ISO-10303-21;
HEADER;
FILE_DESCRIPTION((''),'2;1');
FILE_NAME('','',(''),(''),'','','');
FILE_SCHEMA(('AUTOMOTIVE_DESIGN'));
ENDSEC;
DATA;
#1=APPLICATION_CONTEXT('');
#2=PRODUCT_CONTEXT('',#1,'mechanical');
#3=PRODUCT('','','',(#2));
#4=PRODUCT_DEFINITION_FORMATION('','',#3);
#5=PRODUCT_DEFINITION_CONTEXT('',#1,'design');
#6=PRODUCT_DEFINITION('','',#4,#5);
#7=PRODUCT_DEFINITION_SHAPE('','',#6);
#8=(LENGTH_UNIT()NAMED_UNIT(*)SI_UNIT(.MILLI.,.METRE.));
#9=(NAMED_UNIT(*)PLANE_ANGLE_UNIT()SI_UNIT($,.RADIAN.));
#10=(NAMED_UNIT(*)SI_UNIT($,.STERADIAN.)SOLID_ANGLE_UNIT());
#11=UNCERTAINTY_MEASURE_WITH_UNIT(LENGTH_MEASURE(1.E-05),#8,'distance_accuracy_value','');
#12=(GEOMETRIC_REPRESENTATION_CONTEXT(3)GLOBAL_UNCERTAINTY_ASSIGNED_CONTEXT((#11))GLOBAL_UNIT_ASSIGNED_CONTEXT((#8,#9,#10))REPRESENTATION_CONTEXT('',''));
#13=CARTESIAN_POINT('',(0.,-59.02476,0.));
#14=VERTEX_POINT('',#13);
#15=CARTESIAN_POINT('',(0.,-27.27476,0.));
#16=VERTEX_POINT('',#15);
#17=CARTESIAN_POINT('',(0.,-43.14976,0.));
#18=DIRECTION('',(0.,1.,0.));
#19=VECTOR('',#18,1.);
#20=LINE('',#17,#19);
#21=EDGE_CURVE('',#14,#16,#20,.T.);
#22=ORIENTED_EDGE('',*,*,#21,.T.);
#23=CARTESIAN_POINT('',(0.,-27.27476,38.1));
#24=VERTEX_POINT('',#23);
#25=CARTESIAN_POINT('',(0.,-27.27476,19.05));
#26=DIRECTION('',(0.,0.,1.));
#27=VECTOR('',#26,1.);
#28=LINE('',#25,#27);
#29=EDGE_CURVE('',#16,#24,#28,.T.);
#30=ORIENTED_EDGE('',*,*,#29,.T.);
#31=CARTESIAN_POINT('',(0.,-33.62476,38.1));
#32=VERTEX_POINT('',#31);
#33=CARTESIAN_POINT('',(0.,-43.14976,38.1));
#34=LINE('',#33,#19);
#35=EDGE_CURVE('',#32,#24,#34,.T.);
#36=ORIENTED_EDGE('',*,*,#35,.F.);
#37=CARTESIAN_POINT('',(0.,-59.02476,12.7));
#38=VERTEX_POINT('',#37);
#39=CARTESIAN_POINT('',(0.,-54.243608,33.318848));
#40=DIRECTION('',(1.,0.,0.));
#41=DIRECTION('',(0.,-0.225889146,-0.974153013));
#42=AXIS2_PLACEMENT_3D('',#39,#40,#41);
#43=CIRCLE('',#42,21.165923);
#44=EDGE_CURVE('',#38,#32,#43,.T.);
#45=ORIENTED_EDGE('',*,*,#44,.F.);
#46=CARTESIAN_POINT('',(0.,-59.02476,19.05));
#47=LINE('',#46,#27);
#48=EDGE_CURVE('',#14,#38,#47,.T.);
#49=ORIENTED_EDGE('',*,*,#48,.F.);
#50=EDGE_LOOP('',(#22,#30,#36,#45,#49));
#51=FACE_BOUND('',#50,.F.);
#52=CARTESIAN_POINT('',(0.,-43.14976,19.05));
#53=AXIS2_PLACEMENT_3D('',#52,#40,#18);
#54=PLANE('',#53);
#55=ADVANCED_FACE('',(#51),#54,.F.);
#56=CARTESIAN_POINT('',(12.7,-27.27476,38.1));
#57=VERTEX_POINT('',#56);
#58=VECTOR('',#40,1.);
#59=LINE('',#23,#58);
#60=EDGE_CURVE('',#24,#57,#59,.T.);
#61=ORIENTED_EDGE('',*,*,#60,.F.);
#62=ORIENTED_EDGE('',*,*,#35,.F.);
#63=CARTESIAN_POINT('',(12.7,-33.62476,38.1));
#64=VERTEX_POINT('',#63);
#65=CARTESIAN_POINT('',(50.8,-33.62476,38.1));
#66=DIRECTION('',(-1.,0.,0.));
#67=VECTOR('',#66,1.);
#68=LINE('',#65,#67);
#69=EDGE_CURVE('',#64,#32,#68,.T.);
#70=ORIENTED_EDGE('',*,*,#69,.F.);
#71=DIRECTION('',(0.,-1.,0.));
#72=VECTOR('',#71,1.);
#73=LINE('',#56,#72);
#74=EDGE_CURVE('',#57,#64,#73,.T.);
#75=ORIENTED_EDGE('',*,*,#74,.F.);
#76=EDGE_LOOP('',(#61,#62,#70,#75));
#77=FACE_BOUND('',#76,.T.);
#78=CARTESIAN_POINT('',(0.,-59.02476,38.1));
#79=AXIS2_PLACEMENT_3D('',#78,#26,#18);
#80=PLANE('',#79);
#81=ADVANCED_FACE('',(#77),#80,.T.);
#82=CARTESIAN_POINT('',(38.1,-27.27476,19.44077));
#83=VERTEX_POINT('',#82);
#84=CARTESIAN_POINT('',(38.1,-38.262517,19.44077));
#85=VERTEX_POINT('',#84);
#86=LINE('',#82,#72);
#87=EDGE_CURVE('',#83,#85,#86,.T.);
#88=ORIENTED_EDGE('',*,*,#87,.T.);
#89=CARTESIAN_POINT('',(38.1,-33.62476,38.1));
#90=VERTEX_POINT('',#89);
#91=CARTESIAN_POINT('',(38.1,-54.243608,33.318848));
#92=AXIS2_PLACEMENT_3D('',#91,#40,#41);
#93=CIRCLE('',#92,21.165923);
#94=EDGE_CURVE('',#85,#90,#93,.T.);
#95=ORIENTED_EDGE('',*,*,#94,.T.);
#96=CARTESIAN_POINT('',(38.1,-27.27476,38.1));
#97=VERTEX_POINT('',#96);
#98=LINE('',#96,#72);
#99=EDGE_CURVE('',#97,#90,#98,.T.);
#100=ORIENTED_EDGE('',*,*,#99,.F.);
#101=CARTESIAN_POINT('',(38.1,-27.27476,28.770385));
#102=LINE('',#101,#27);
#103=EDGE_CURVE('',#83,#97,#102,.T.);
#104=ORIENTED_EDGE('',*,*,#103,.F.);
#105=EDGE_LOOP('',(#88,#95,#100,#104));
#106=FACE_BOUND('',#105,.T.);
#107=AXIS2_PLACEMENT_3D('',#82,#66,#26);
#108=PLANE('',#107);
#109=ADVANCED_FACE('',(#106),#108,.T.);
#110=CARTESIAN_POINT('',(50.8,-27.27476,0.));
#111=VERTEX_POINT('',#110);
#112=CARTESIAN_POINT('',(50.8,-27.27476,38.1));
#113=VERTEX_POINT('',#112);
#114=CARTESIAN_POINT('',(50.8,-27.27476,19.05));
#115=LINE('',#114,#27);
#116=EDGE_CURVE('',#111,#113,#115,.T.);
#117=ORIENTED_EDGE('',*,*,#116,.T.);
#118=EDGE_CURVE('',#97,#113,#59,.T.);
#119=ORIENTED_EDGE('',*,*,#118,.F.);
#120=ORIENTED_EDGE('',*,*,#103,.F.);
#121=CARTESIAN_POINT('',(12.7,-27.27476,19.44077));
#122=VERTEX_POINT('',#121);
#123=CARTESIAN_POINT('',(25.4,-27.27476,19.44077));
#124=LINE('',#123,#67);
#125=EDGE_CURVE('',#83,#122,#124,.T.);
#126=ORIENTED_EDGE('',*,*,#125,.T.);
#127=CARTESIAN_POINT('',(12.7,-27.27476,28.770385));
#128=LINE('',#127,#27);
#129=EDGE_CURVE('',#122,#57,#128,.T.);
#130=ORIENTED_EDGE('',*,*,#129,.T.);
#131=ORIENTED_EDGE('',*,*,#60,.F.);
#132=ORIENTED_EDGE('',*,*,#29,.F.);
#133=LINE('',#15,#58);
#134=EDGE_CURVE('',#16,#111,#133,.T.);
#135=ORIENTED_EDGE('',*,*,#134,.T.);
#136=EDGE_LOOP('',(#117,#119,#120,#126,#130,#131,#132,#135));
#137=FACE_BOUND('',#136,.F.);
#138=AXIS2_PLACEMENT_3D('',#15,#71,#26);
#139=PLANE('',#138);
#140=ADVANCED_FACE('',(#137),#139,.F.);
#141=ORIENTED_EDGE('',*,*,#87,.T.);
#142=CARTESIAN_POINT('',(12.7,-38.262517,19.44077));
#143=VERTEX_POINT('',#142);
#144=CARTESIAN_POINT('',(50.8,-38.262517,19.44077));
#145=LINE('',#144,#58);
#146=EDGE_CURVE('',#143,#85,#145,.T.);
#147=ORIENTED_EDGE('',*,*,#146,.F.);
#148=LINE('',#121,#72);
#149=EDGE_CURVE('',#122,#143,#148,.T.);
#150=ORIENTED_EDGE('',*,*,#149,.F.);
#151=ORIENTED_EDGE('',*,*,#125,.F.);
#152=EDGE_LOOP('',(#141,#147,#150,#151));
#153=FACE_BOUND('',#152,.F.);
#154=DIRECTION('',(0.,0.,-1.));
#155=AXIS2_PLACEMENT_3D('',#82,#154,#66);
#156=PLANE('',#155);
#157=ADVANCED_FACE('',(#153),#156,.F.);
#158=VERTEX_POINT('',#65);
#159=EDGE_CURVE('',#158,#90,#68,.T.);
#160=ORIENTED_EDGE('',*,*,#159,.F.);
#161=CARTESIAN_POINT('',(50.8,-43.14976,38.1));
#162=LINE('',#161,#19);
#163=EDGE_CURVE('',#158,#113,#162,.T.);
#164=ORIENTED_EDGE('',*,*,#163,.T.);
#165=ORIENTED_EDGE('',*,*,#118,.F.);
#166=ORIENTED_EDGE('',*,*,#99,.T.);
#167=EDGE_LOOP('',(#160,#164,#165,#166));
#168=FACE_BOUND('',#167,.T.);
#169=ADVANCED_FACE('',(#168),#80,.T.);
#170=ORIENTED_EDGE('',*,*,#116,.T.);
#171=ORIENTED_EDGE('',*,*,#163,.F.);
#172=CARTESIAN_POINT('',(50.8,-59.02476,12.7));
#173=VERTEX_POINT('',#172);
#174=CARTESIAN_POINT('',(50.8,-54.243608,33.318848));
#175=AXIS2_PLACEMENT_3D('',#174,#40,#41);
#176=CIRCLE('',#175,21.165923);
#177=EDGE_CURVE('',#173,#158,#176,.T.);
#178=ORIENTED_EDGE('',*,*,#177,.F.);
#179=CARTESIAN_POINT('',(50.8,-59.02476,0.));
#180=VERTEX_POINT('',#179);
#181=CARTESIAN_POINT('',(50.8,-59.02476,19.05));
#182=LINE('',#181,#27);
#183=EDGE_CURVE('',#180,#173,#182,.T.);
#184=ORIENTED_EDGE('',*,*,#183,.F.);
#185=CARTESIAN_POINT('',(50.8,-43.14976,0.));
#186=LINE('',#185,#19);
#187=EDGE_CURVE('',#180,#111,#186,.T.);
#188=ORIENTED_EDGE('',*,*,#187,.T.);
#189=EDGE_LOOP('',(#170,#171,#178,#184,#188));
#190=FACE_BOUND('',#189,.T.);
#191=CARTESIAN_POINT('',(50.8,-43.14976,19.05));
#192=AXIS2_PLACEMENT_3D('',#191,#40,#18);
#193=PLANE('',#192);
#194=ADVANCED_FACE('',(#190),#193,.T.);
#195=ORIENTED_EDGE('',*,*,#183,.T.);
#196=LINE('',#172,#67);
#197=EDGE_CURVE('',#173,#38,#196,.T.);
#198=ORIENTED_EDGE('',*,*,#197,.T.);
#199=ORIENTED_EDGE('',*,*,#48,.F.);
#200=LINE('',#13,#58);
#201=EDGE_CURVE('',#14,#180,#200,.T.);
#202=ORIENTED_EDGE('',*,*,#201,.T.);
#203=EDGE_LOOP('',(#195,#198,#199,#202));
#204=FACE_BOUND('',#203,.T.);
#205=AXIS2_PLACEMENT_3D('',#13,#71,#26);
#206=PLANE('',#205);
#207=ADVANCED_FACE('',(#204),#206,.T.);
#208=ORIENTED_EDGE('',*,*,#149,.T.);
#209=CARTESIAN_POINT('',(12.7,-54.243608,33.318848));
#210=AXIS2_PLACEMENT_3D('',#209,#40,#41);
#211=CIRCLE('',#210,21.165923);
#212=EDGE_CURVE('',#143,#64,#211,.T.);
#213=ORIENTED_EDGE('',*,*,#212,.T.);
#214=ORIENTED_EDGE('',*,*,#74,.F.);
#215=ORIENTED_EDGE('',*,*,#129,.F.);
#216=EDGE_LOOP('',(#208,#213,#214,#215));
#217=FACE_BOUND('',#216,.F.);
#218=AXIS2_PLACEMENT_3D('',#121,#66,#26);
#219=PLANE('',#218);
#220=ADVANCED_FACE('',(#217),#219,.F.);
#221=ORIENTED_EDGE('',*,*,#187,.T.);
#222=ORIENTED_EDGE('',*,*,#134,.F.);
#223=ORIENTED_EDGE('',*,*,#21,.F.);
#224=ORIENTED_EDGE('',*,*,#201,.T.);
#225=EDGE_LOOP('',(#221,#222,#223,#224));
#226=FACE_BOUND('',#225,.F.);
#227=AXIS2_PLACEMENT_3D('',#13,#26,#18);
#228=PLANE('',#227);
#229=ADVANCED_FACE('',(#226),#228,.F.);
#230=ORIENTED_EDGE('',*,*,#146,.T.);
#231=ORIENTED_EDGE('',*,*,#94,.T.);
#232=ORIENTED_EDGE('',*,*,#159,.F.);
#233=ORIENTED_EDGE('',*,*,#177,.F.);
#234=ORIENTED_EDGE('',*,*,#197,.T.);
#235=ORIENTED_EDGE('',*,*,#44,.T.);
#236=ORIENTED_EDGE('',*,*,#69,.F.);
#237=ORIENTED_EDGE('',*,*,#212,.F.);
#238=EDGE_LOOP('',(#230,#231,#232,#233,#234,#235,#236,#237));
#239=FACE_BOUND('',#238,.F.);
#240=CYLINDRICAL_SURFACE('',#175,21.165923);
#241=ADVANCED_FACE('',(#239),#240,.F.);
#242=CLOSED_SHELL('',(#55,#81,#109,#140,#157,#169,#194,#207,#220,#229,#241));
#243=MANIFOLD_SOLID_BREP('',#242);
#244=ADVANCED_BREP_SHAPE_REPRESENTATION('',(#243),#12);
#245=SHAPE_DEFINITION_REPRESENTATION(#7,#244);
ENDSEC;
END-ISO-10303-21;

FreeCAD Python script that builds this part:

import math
import FreeCAD as App
import Part
import Sketcher
from FreeCAD import Vector
Q = App.Units.Quantity


def add_polygon(sketch, points):
    """Adds a closed chain of lines whose ends are joined by coincident constraints."""
    first, n = sketch.GeometryCount, len(points)
    for a, b in zip(points, points[1:] + points[:1]):
        sketch.addGeometry(Part.LineSegment(App.Vector(*a, 0), App.Vector(*b, 0)), False)
    for i in range(n):
        sketch.addConstraint(Sketcher.Constraint("Coincident", first + i, 2, first + (i + 1) % n, 1))

doc = App.newDocument("Part")
body = doc.addObject("PartDesign::Body", "Body")

sketch1 = body.newObject("Sketcher::SketchObject", "Sketch")
sketch1.AttachmentSupport = (doc.getObject("YZ_Plane"), [""])
sketch1.MapMode = "FlatFace"
add_polygon(sketch1, [(-59, 38), (-59, 0), (-27, 0), (-27, 38)])
sketch1.addConstraint([
    Sketcher.Constraint("Vertical", 0),
    Sketcher.Constraint("Horizontal", 1),
    Sketcher.Constraint("Vertical", 2),
    Sketcher.Constraint("Horizontal", 3),
    Sketcher.Constraint("PointOnObject", 0, 2, -1),
    Sketcher.Constraint("DistanceY", 0, 2, 0, 1, Q("1.5 in")),
    Sketcher.Constraint("DistanceX", 1, 1, 1, 2, Q("1.25 in")),
    Sketcher.Constraint("DistanceX", 0, 2, -1, 1, 59.02476),
])
pad1 = body.newObject("PartDesign::Pad", "Pad")
pad1.Profile = sketch1
pad1.Length = Q("2 in")

sketch2 = body.newObject("Sketcher::SketchObject", "Sketch001")
sketch2.AttachmentSupport = (doc.getObject("YZ_Plane"), [""])
sketch2.MapMode = "FlatFace"
sketch2.AttachmentOffset = App.Placement(Vector(0, 0, 2 * 25.4), App.Rotation())
sketch2.addGeometry([
    Part.LineSegment(Vector(-59, 38, 0), Vector(-59, 13, 0)),
    Part.ArcOfCircle(Part.Circle(Vector(-54, 33, 0), Vector(0, 0, 1), 21), math.radians(-103), math.radians(13)),
    Part.LineSegment(Vector(-34, 38, 0), Vector(-59, 38, 0)),
], False)
sketch2.addConstraint([
    Sketcher.Constraint("Coincident", 0, 2, 1, 1),
    Sketcher.Constraint("Coincident", 1, 2, 2, 1),
    Sketcher.Constraint("Coincident", 2, 2, 0, 1),
    Sketcher.Constraint("Vertical", 0),
    Sketcher.Constraint("Horizontal", 2),
    Sketcher.Constraint("Equal", 2, 0),
    Sketcher.Constraint("DistanceX", 2, 2, 2, 1, Q("1 in")),
    Sketcher.Constraint("DistanceY", -1, 1, 0, 2, Q("0.5 in")),
    Sketcher.Constraint("Radius", 1, 21.165923),
    Sketcher.Constraint("DistanceX", 0, 2, -1, 1, 59.02476),
])
pocket1 = body.newObject("PartDesign::Pocket", "Pocket")
pocket1.Profile = sketch2
pocket1.Type = "ThroughAll"

sketch3 = body.newObject("Sketcher::SketchObject", "Sketch002")
sketch3.AttachmentSupport = (doc.getObject("XZ_Plane"), [""])
sketch3.MapMode = "FlatFace"
sketch3.AttachmentOffset = App.Placement(Vector(0, 0, 27.27476), App.Rotation())
add_polygon(sketch3, [(38, 38), (38, 19), (13, 19), (13, 38)])
sketch3.addConstraint([
    Sketcher.Constraint("Vertical", 0),
    Sketcher.Constraint("Horizontal", 1),
    Sketcher.Constraint("Vertical", 2),
    Sketcher.Constraint("Horizontal", 3),
    Sketcher.Constraint("DistanceX", 1, 2, 1, 1, Q("1 in")),
    Sketcher.Constraint("DistanceX", -1, 1, 0, 2, Q("1.5 in")),
    Sketcher.Constraint("DistanceY", -1, 1, 2, 2, Q("1.5 in")),
    Sketcher.Constraint("DistanceY", 0, 2, 0, 1, 18.65923),
])
pocket2 = body.newObject("PartDesign::Pocket", "Pocket001")
pocket2.Profile = sketch3
pocket2.Length = Q("1 in")
pocket2.Reversed = True

doc.recompute()
